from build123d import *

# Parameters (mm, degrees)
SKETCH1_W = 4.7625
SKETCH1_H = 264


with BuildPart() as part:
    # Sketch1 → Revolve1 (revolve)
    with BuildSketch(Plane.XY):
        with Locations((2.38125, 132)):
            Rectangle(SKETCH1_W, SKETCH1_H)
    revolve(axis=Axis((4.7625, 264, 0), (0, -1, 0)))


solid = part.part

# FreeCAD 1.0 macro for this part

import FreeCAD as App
import Part
import Sketcher
from FreeCAD import Vector
Q = App.Units.Quantity


def add_polygon(sketch, points):
    """Adds a closed chain of lines whose ends are joined by coincident constraints."""
    first, n = sketch.GeometryCount, len(points)
    for a, b in zip(points, points[1:] + points[:1]):
        sketch.addGeometry(Part.LineSegment(App.Vector(*a, 0), App.Vector(*b, 0)), False)
    for i in range(n):
        sketch.addConstraint(Sketcher.Constraint("Coincident", first + i, 2, first + (i + 1) % n, 1))

doc = App.newDocument("Part")
body = doc.addObject("PartDesign::Body", "Body")

sketch1 = body.newObject("Sketcher::SketchObject", "Sketch")
sketch1.AttachmentSupport = (doc.getObject("XY_Plane"), [""])
sketch1.MapMode = "FlatFace"
add_polygon(sketch1, [(0, 264), (0, 0), (4.8, 0), (4.8, 264)])
sketch1.addGeometry(Part.LineSegment(Vector(4.8, 264, 0), Vector(4.8, 0, 0)), True)
sketch1.addConstraint([
    Sketcher.Constraint("Vertical", 0),
    Sketcher.Constraint("Horizontal", 1),
    Sketcher.Constraint("Vertical", 2),
    Sketcher.Constraint("Horizontal", 3),
    Sketcher.Constraint("Vertical", 4),
    Sketcher.Constraint("Coincident", 0, 2, -1, 1),
    Sketcher.Constraint("Coincident", 4, 1, 2, 2),
    Sketcher.Constraint("PointOnObject", 4, 2, -1),
    Sketcher.Constraint("DistanceY", 0, 2, 0, 1, Q("264 mm")),
    Sketcher.Constraint("DistanceX", 1, 1, 1, 2, Q("4.7625 mm")),
])
revolution = body.newObject("PartDesign::Revolution", "Revolution")
revolution.Profile = sketch1
revolution.ReferenceAxis = (sketch1, ["Axis0"])
revolution.Angle = 360

doc.recompute()
